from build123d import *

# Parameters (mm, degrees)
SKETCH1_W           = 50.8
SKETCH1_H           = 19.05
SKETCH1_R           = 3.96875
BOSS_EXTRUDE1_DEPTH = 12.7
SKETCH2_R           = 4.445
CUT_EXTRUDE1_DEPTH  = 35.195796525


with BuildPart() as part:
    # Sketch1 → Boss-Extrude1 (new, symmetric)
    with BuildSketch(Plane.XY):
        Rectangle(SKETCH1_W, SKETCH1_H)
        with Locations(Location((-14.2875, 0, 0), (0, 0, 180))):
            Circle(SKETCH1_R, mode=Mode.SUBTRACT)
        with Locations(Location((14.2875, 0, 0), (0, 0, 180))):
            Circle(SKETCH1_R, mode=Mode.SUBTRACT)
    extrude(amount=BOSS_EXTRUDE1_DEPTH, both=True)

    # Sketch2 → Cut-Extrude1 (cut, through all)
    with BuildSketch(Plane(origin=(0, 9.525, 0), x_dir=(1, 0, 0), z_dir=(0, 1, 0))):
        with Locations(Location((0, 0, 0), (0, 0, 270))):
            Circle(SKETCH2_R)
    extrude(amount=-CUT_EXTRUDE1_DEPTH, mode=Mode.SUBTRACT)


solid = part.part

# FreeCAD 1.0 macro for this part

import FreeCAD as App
import Part
import Sketcher

V = App.Vector
Q = App.Units.Quantity


def add_polygon(sketch, points):
    """Adds a closed chain of lines whose ends are joined by coincident constraints."""
    first, n = sketch.GeometryCount, len(points)
    for a, b in zip(points, points[1:] + points[:1]):
        sketch.addGeometry(Part.LineSegment(App.Vector(*a, 0), App.Vector(*b, 0)), False)
    for i in range(n):
        sketch.addConstraint(Sketcher.Constraint("Coincident", first + i, 2, first + (i + 1) % n, 1))

doc = App.newDocument("Part")
body = doc.addObject("PartDesign::Body", "Body")

sketch1 = body.newObject("Sketcher::SketchObject", "Sketch")
sketch1.AttachmentSupport = (doc.getObject("XY_Plane"), [""])
sketch1.MapMode = "FlatFace"
add_polygon(sketch1, [(-25.4, 9.5), (-25.4, -9.5), (25.4, -9.5), (25.4, 9.5)])
sketch1.addGeometry(Part.Circle(V(-14.3, 0, 0), V(0, 0, 1), 4), False)
sketch1.addGeometry(Part.Circle(V(14.3, 0, 0), V(0, 0, 1), 4), False)
sketch1.addConstraint([
    Sketcher.Constraint("Vertical", 0),
    Sketcher.Constraint("Horizontal", 1),
    Sketcher.Constraint("Vertical", 2),
    Sketcher.Constraint("Horizontal", 3),
    Sketcher.Constraint("Equal", 4, 5),
    Sketcher.Constraint("Symmetric", 4, 3, 5, 3, -1, 1),
    Sketcher.Constraint("Symmetric", 0, 2, 2, 2, -1, 1),
    Sketcher.Constraint("PointOnObject", 4, 3, -1),
    Sketcher.Constraint("DistanceX", 1, 1, 1, 2, Q("2 in")),
    Sketcher.Constraint("Diameter", 4, Q("0.3125 in")),
    Sketcher.Constraint("DistanceY", 0, 2, 0, 1, Q("0.75 in")),
    Sketcher.Constraint("DistanceX", 4, 3, -1, 1, Q("0.5625 in")),
])
pad1 = body.newObject("PartDesign::Pad", "Pad")
pad1.Profile = sketch1
pad1.Length = Q("1 in")
pad1.Midplane = True

sketch2 = body.newObject("Sketcher::SketchObject", "Sketch001")
sketch2.AttachmentSupport = (doc.getObject("XZ_Plane"), [""])
sketch2.MapMode = "FlatFace"
sketch2.AttachmentOffset = App.Placement(V(0, 0, -0.375 * 25.4), App.Rotation())
sketch2.addGeometry(Part.Circle(V(0, 0, 0), V(0, 0, 1), 4.4), False)
sketch2.addConstraint([
    Sketcher.Constraint("Coincident", 0, 3, -1, 1),
    Sketcher.Constraint("Diameter", 0, Q("0.35 in")),
])
pocket1 = body.newObject("PartDesign::Pocket", "Pocket")
pocket1.Profile = sketch2
pocket1.Type = "ThroughAll"
pocket1.Reversed = True

doc.recompute()
